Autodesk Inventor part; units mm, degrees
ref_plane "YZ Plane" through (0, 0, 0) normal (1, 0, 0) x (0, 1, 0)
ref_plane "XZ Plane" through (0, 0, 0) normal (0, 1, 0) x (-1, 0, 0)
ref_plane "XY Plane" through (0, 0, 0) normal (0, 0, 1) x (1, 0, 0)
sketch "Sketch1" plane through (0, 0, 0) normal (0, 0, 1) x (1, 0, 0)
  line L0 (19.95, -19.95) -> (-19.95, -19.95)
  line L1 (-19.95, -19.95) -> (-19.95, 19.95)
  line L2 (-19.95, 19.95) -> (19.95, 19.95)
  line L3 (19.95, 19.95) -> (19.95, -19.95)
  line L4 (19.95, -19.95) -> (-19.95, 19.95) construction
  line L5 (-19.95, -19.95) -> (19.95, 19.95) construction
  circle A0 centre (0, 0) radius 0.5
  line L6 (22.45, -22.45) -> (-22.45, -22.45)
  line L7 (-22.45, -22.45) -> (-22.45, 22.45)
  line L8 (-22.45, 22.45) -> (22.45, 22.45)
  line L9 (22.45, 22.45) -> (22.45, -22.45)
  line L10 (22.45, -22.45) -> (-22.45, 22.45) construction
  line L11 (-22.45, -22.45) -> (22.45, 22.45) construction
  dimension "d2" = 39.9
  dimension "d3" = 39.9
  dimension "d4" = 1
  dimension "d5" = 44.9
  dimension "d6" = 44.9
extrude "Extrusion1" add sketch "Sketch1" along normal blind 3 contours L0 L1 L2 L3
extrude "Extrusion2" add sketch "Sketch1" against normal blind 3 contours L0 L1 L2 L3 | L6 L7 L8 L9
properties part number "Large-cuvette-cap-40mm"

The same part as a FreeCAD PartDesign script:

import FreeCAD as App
import Part
import Sketcher

V = App.Vector
Q = App.Units.Quantity

doc = App.newDocument("Part")
body = doc.addObject("PartDesign::Body", "Body")

sketch1 = doc.addObject("Sketcher::SketchObject", "Sketch")
body.addObject(sketch1)
sketch1.AttachmentSupport = (doc.XY_Plane, [""])
sketch1.MapMode = "FlatFace"
sketch1.addGeometry([
    Part.LineSegment(V(-19.9, -19.9, 0), V(19.9, -19.9, 0)),
    Part.LineSegment(V(19.9, -19.9, 0), V(19.9, 19.9, 0)),
    Part.LineSegment(V(19.9, 19.9, 0), V(-19.9, 19.9, 0)),
    Part.LineSegment(V(-19.9, 19.9, 0), V(-19.9, -19.9, 0)),
    Part.Circle(V(0, 0, 0), V(0, 0, 1), 0.5),
], False)
sketch1.addConstraint([
    Sketcher.Constraint("Coincident", 0, 2, 1, 1),
    Sketcher.Constraint("Coincident", 1, 2, 2, 1),
    Sketcher.Constraint("Coincident", 2, 2, 3, 1),
    Sketcher.Constraint("Coincident", 3, 2, 0, 1),
    Sketcher.Constraint("Horizontal", 0),
    Sketcher.Constraint("Vertical", 1),
    Sketcher.Constraint("Horizontal", 2),
    Sketcher.Constraint("Vertical", 3),
    Sketcher.Constraint("Coincident", 4, 3, -1, 1),
    Sketcher.Constraint("Symmetric", 0, 2, 2, 2, -1, 1),
    Sketcher.Constraint("Equal", 2, 1),
    Sketcher.Constraint("Diameter", 4, Q("1 mm")),
    Sketcher.Constraint("DistanceX", 0, 1, 0, 2, Q("39.9 mm")),
])
pad1 = doc.addObject("PartDesign::Pad", "Pad")
body.addObject(pad1)
pad1.Profile = sketch1
pad1.Length = 3

sketch2 = doc.addObject("Sketcher::SketchObject", "Sketch001")
body.addObject(sketch2)
sketch2.AttachmentSupport = (doc.XY_Plane, [""])
sketch2.MapMode = "FlatFace"
sketch2.addGeometry([
    Part.LineSegment(V(-22.4, -22.4, 0), V(22.4, -22.4, 0)),
    Part.LineSegment(V(22.4, -22.4, 0), V(22.4, 22.4, 0)),
    Part.LineSegment(V(22.4, 22.4, 0), V(-22.4, 22.4, 0)),
    Part.LineSegment(V(-22.4, 22.4, 0), V(-22.4, -22.4, 0)),
    Part.Circle(V(0, 0, 0), V(0, 0, 1), 0.5),
], False)
sketch2.addConstraint([
    Sketcher.Constraint("Coincident", 0, 2, 1, 1),
    Sketcher.Constraint("Coincident", 1, 2, 2, 1),
    Sketcher.Constraint("Coincident", 2, 2, 3, 1),
    Sketcher.Constraint("Coincident", 3, 2, 0, 1),
    Sketcher.Constraint("Horizontal", 0),
    Sketcher.Constraint("Vertical", 1),
    Sketcher.Constraint("Horizontal", 2),
    Sketcher.Constraint("Vertical", 3),
    Sketcher.Constraint("Coincident", 4, 3, -1, 1),
    Sketcher.Constraint("Symmetric", 0, 2, 2, 2, -1, 1),
    Sketcher.Constraint("Equal", 2, 1),
    Sketcher.Constraint("Diameter", 4, Q("1 mm")),
    Sketcher.Constraint("DistanceX", 0, 1, 0, 2, Q("44.9 mm")),
])
pad2 = doc.addObject("PartDesign::Pad", "Pad001")
body.addObject(pad2)
pad2.Profile = sketch2
pad2.Length = 3
pad2.Reversed = True

doc.recompute()
